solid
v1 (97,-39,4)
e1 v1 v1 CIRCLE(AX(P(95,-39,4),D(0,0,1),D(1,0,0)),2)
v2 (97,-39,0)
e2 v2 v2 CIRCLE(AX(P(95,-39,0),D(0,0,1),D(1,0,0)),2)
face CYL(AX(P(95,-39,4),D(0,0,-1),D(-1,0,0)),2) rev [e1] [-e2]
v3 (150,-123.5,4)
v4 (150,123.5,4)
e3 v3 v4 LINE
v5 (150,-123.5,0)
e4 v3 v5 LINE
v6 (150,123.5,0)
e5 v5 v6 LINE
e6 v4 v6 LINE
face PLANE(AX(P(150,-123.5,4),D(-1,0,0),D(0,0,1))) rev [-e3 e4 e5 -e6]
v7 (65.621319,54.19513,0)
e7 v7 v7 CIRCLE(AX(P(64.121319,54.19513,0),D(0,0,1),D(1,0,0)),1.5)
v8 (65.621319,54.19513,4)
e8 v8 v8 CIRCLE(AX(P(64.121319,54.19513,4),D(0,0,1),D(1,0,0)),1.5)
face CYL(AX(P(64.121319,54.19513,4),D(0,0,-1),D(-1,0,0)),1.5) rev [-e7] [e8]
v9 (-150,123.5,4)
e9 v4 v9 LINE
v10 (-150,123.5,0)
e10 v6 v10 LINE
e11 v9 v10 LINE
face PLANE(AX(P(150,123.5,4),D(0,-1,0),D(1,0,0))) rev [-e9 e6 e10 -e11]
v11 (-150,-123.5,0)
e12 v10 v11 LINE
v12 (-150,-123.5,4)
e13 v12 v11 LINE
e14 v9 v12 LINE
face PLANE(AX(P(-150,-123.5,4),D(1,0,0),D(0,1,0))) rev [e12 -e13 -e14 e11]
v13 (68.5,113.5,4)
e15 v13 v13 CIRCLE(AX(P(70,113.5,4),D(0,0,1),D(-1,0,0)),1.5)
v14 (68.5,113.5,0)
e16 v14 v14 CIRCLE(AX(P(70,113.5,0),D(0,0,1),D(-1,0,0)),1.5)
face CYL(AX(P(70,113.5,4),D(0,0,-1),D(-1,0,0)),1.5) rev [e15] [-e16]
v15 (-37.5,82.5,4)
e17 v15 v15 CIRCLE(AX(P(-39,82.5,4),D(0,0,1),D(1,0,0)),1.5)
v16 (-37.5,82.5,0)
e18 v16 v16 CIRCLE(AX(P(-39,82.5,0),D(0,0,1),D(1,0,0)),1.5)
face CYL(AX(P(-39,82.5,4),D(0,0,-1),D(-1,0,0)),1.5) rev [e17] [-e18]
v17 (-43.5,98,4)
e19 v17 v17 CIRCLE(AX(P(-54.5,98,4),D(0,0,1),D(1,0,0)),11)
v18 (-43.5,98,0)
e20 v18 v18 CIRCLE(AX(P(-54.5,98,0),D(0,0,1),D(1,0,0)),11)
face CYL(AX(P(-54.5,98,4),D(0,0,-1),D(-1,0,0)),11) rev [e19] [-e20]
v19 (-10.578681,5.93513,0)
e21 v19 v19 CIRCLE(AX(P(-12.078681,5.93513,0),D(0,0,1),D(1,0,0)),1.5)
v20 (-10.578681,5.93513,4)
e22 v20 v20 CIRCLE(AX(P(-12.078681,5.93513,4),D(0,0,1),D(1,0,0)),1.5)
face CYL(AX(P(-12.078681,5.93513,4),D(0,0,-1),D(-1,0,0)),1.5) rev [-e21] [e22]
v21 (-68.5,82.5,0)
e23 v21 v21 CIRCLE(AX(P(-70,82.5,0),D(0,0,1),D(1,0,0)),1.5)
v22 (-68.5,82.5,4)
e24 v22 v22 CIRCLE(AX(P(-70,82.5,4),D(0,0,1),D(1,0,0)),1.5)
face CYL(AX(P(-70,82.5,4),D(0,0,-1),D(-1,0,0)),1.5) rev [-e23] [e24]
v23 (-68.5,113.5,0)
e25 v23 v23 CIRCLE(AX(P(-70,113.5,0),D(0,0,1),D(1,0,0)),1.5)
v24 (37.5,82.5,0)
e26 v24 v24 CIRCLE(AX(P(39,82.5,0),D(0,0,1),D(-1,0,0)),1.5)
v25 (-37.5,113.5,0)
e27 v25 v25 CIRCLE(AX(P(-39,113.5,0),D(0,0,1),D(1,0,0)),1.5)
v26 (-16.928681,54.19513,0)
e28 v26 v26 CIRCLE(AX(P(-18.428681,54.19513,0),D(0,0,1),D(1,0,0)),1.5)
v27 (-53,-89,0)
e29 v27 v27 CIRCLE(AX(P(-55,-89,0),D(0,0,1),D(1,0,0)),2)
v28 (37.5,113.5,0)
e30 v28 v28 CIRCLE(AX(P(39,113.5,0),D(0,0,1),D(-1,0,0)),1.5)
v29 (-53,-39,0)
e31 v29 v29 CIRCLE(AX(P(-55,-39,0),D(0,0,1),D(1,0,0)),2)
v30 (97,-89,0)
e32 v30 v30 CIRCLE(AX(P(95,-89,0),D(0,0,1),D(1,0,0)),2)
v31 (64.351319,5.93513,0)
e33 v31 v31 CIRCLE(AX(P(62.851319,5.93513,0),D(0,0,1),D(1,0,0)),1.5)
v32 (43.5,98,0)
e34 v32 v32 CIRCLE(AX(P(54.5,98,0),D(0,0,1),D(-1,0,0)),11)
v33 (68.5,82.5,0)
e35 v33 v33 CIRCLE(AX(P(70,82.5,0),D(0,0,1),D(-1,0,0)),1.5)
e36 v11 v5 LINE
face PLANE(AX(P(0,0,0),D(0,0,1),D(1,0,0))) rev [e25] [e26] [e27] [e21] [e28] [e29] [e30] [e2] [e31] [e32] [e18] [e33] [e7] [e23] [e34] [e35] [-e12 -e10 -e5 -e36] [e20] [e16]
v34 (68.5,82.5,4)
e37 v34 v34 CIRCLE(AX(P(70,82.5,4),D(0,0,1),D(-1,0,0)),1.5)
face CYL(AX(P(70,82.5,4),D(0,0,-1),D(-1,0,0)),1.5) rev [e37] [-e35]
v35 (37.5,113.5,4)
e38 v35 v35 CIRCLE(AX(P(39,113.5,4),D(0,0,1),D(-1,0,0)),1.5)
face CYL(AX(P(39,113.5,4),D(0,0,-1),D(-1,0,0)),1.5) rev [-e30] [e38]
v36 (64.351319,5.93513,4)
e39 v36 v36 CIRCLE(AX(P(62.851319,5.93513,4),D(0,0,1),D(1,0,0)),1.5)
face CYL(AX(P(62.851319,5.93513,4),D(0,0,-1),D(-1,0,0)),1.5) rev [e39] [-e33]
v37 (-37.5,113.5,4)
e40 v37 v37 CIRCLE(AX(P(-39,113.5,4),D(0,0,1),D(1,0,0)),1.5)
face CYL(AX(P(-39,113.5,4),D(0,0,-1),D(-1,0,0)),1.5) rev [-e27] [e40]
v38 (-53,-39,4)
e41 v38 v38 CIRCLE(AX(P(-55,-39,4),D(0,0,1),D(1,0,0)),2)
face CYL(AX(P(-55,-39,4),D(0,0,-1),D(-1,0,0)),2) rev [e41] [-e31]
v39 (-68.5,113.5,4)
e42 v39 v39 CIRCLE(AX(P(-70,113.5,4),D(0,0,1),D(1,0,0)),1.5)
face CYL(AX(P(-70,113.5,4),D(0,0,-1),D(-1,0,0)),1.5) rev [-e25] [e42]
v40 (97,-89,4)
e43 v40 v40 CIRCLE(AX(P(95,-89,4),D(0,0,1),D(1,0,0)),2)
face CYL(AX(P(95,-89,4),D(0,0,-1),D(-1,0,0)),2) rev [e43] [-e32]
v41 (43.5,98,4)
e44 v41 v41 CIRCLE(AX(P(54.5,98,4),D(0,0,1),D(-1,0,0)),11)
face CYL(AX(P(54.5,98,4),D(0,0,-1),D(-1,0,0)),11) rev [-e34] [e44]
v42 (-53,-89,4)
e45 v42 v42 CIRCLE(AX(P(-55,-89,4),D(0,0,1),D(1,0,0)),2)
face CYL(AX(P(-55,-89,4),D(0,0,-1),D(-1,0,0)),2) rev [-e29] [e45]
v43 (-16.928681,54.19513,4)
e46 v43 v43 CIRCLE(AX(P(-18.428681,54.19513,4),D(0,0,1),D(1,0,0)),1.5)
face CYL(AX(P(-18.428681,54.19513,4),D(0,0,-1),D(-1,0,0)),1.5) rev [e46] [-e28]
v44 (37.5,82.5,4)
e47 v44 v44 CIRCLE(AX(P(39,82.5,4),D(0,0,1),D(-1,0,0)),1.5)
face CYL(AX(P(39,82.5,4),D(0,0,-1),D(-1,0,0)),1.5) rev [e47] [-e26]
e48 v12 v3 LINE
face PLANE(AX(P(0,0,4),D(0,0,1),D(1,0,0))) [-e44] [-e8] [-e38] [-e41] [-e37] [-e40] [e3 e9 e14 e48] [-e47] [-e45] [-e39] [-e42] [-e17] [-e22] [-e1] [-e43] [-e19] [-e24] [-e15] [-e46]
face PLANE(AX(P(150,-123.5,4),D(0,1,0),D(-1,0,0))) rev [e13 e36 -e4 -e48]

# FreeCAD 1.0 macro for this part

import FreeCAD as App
import Part
import Sketcher

doc = App.newDocument("Part")
body = doc.addObject("PartDesign::Body", "Body")

sketch1 = doc.addObject("Sketcher::SketchObject", "Sketch")
body.addObject(sketch1)
sketch1.AttachmentSupport = (doc.XY_Plane, [""])
sketch1.MapMode = "FlatFace"
sketch1.addGeometry([
    Part.LineSegment(App.Vector(-150, 123.5, 0), App.Vector(-150, -123.5, 0)),
    Part.LineSegment(App.Vector(-150, -123.5, 0), App.Vector(150, -123.5, 0)),
    Part.LineSegment(App.Vector(150, -123.5, 0), App.Vector(150, 123.5, 0)),
    Part.LineSegment(App.Vector(150, 123.5, 0), App.Vector(-150, 123.5, 0)),
    Part.Circle(App.Vector(-55, -89, 0), App.Vector(0, 0, 1), 2),
    Part.Circle(App.Vector(-55, -39, 0), App.Vector(0, 0, 1), 2),
    Part.Circle(App.Vector(-12.1, 5.9, 0), App.Vector(0, 0, 1), 1.5),
    Part.Circle(App.Vector(95, -89, 0), App.Vector(0, 0, 1), 2),
    Part.Circle(App.Vector(95, -39, 0), App.Vector(0, 0, 1), 2),
    Part.Circle(App.Vector(62.9, 5.9, 0), App.Vector(0, 0, 1), 1.5),
    Part.Circle(App.Vector(-18.4, 54.2, 0), App.Vector(0, 0, 1), 1.5),
    Part.Circle(App.Vector(-70, 82.5, 0), App.Vector(0, 0, 1), 1.5),
    Part.Circle(App.Vector(-39, 82.5, 0), App.Vector(0, 0, 1), 1.5),
    Part.Circle(App.Vector(-54.5, 98, 0), App.Vector(0, 0, 1), 11),
    Part.Circle(App.Vector(-70, 113.5, 0), App.Vector(0, 0, 1), 1.5),
    Part.Circle(App.Vector(-39, 113.5, 0), App.Vector(0, 0, 1), 1.5),
    Part.Circle(App.Vector(64.1, 54.2, 0), App.Vector(0, 0, 1), 1.5),
    Part.Circle(App.Vector(39, 82.5, 0), App.Vector(0, 0, 1), 1.5),
    Part.Circle(App.Vector(54.5, 98, 0), App.Vector(0, 0, 1), 11),
    Part.Circle(App.Vector(39, 113.5, 0), App.Vector(0, 0, 1), 1.5),
    Part.Circle(App.Vector(70, 82.5, 0), App.Vector(0, 0, 1), 1.5),
    Part.Circle(App.Vector(70, 113.5, 0), App.Vector(0, 0, 1), 1.5),
], False)
sketch1.addConstraint([
    Sketcher.Constraint("Coincident", 0, 2, 1, 1),
    Sketcher.Constraint("Coincident", 1, 2, 2, 1),
    Sketcher.Constraint("Coincident", 2, 2, 3, 1),
    Sketcher.Constraint("Coincident", 3, 2, 0, 1),
    Sketcher.Constraint("Vertical", 0),
    Sketcher.Constraint("Horizontal", 1),
    Sketcher.Constraint("Vertical", 2),
    Sketcher.Constraint("Horizontal", 3),
    Sketcher.Constraint("Equal", 4, 5),
    Sketcher.Constraint("Equal", 5, 7),
    Sketcher.Constraint("Equal", 7, 8),
    Sketcher.Constraint("Equal", 6, 9),
    Sketcher.Constraint("Equal", 9, 10),
    Sketcher.Constraint("Equal", 10, 11),
    Sketcher.Constraint("Equal", 11, 12),
    Sketcher.Constraint("Equal", 12, 14),
    Sketcher.Constraint("Equal", 14, 15),
    Sketcher.Constraint("Equal", 15, 16),
    Sketcher.Constraint("Equal", 16, 17),
    Sketcher.Constraint("Equal", 13, 18),
    Sketcher.Constraint("Equal", 17, 19),
    Sketcher.Constraint("Equal", 19, 20),
    Sketcher.Constraint("Equal", 20, 21),
    Sketcher.Constraint("Symmetric", 0, 2, 2, 2, -1, 1),
    Sketcher.Constraint("Symmetric", 12, 3, 17, 3, -2),
    Sketcher.Constraint("Symmetric", 13, 3, 18, 3, -2),
    Sketcher.Constraint("Symmetric", 15, 3, 19, 3, -2),
    Sketcher.Constraint("Symmetric", 11, 3, 20, 3, -2),
    Sketcher.Constraint("Symmetric", 14, 3, 21, 3, -2),
    Sketcher.Constraint("Horizontal", 4, 3, 7, 3),
    Sketcher.Constraint("Horizontal", 5, 3, 8, 3),
    Sketcher.Constraint("Horizontal", 6, 3, 9, 3),
    Sketcher.Constraint("Horizontal", 11, 3, 12, 3),
    Sketcher.Constraint("Horizontal", 14, 3, 15, 3),
    Sketcher.Constraint("Horizontal", 10, 3, 16, 3),
    Sketcher.Constraint("Vertical", 4, 3, 5, 3),
    Sketcher.Constraint("Vertical", 7, 3, 8, 3),
    Sketcher.Constraint("Vertical", 11, 3, 14, 3),
    Sketcher.Constraint("Vertical", 12, 3, 15, 3),
    Sketcher.Constraint("Diameter", 4, 4.0),
    Sketcher.Constraint("Diameter", 6, 3.0),
    Sketcher.Constraint("Diameter", 13, 22.0),
    Sketcher.Constraint("DistanceX", 1, 1, 1, 2, 300.0),
    Sketcher.Constraint("DistanceY", 0, 2, 0, 1, 247.0),
    Sketcher.Constraint("DistanceX", 4, 3, -1, 1, 55.0),
    Sketcher.Constraint("DistanceY", 4, 3, -1, 1, 89.0),
    Sketcher.Constraint("DistanceY", 5, 3, -1, 1, 39.0),
    Sketcher.Constraint("DistanceX", -1, 1, 7, 3, 95.0),
    Sketcher.Constraint("DistanceX", 11, 3, -1, 1, 70.0),
    Sketcher.Constraint("DistanceX", 12, 3, -1, 1, 39.0),
    Sketcher.Constraint("DistanceY", -1, 1, 13, 3, 98.0),
    Sketcher.Constraint("DistanceY", 11, 3, 14, 3, 31.0),
    Sketcher.Constraint("DistanceY", 0, 2, 11, 3, 206.0),
    Sketcher.Constraint("DistanceX", 13, 3, -1, 1, 54.5),
    Sketcher.Constraint("DistanceX", 6, 3, 16, 3, 76.2),
    Sketcher.Constraint("DistanceX", 6, 3, 9, 3, 74.93),
    Sketcher.Constraint("DistanceX", 10, 3, 6, 3, 6.35),
    Sketcher.Constraint("DistanceY", 6, 3, 10, 3, 48.26),
    Sketcher.Constraint("DistanceX", 6, 3, -1, 1, 12.078681),
    Sketcher.Constraint("DistanceY", -1, 1, 6, 3, 5.93513),
])
pad1 = doc.addObject("PartDesign::Pad", "Pad")
body.addObject(pad1)
pad1.Profile = sketch1
pad1.Length = 4

doc.recompute()
